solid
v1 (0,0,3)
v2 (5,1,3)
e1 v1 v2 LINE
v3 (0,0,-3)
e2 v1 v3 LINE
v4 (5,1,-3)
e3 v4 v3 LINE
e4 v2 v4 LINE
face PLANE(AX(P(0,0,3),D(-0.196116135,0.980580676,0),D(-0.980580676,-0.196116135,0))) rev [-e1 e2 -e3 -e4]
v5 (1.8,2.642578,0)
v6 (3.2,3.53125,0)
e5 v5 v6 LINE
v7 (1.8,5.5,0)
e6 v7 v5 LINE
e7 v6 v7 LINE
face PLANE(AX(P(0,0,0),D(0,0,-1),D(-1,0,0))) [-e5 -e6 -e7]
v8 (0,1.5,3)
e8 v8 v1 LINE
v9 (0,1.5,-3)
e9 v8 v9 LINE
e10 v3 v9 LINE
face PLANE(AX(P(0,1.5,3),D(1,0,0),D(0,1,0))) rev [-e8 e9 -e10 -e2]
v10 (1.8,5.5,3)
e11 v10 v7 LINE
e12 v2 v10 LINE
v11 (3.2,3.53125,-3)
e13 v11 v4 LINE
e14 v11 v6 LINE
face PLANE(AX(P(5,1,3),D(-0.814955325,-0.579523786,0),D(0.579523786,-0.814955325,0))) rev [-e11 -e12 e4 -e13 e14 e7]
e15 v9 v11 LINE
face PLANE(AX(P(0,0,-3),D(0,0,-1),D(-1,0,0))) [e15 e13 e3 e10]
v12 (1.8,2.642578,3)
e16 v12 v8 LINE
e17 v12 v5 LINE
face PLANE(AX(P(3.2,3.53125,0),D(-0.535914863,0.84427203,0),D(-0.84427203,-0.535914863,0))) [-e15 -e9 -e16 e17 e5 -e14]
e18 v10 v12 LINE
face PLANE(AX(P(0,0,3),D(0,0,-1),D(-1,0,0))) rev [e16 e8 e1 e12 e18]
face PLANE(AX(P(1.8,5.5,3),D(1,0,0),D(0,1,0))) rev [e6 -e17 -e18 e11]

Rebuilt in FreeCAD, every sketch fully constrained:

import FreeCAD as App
import Part
import Sketcher


def add_polygon(sketch, points):
    """Adds a closed chain of lines whose ends are joined by coincident constraints."""
    first, n = sketch.GeometryCount, len(points)
    for a, b in zip(points, points[1:] + points[:1]):
        sketch.addGeometry(Part.LineSegment(App.Vector(*a, 0), App.Vector(*b, 0)), False)
    for i in range(n):
        sketch.addConstraint(Sketcher.Constraint("Coincident", first + i, 2, first + (i + 1) % n, 1))

doc = App.newDocument("Part")
body = doc.addObject("PartDesign::Body", "Body")

# Sketch on XY plane
sketch1 = body.newObject("Sketcher::SketchObject", "Sketch")
sketch1.AttachmentSupport = (doc.getObject("XY_Plane"), [""])
sketch1.MapMode = "FlatFace"
add_polygon(sketch1, [(0, 0), (5, 1), (1.8, 5.5), (1.8, 1.5), (0, 1.5)])  # lines 0-4
sketch1.addConstraint([
    Sketcher.Constraint("Vertical", 2),
    Sketcher.Constraint("Horizontal", 3),
    Sketcher.Constraint("Vertical", 4),
    Sketcher.Constraint("Coincident", 4, 2, -1, 1),
    Sketcher.Constraint("DistanceY", 2, 2, 2, 1, 4.0),
    Sketcher.Constraint("DistanceX", 3, 2, 3, 1, 1.8),
    Sketcher.Constraint("DistanceY", 4, 2, 4, 1, 1.5),
    Sketcher.Constraint("DistanceX", -1, 1, 0, 2, 5.0),
    Sketcher.Constraint("DistanceY", -1, 1, 0, 2, 1.0),
])
pad1 = body.newObject("PartDesign::Pad", "Pad")
pad1.Profile = sketch1
pad1.Length = 3

# Sketch on XY plane
sketch2 = body.newObject("Sketcher::SketchObject", "Sketch001")
sketch2.AttachmentSupport = (doc.getObject("XY_Plane"), [""])
sketch2.MapMode = "FlatFace"
add_polygon(sketch2, [(3.2, 3.5), (5, 1), (0, 0), (0, 1.5), (3.2, 1.5)])  # lines 0-4
sketch2.addConstraint([
    Sketcher.Constraint("Vertical", 2),
    Sketcher.Constraint("Horizontal", 3),
    Sketcher.Constraint("Vertical", 4),
    Sketcher.Constraint("Coincident", 1, 2, -1, 1),
    Sketcher.Constraint("DistanceX", 3, 1, 3, 2, 3.2),
    Sketcher.Constraint("DistanceY", 2, 1, 2, 2, 1.5),
    Sketcher.Constraint("DistanceX", -1, 1, 0, 2, 5.0),
    Sketcher.Constraint("DistanceY", -1, 1, 0, 2, 1.0),
    Sketcher.Constraint("Distance", 0, 3.105998),
])
pad2 = body.newObject("PartDesign::Pad", "Pad001")
pad2.Profile = sketch2
pad2.Length = 3
pad2.Reversed = True

# Sketch on XY plane
sketch3 = body.newObject("Sketcher::SketchObject", "Sketch002")
sketch3.AttachmentSupport = (doc.getObject("XY_Plane"), [""])
sketch3.MapMode = "FlatFace"
sketch3.AttachmentOffset = App.Placement(App.Vector(0, 0, -3), App.Rotation())
add_polygon(sketch3, [(0, 1.5), (3.2, 3.5), (3.2, 1.5)])  # lines 0-2
sketch3.addConstraint([
    Sketcher.Constraint("Vertical", 1),
    Sketcher.Constraint("Horizontal", 2),
    Sketcher.Constraint("PointOnObject", 2, 2, -2),
    Sketcher.Constraint("DistanceX", 2, 2, 2, 1, 3.2),
    Sketcher.Constraint("DistanceY", -1, 1, 1, 2, 1.5),
    Sketcher.Constraint("DistanceY", 1, 2, 1, 1, 2.03125),
])
pad3 = body.newObject("PartDesign::Pad", "Pad002")
pad3.Profile = sketch3
pad3.Length = 3

# Sketch on XY plane
sketch4 = body.newObject("Sketcher::SketchObject", "Sketch003")
sketch4.AttachmentSupport = (doc.getObject("XY_Plane"), [""])
sketch4.MapMode = "FlatFace"
add_polygon(sketch4, [(1.8, 1.5), (1.8, 2.6), (0, 1.5)])  # lines 0-2
sketch4.addConstraint([
    Sketcher.Constraint("Vertical", 0),
    Sketcher.Constraint("Horizontal", 2),
    Sketcher.Constraint("PointOnObject", 1, 2, -2),
    Sketcher.Constraint("DistanceX", 2, 1, 2, 2, 1.8),
    Sketcher.Constraint("DistanceY", -1, 1, 1, 2, 1.5),
    Sketcher.Constraint("DistanceY", 0, 1, 0, 2, 1.142578),
])
pad4 = body.newObject("PartDesign::Pad", "Pad003")
pad4.Profile = sketch4
pad4.Length = 3

doc.recompute()
